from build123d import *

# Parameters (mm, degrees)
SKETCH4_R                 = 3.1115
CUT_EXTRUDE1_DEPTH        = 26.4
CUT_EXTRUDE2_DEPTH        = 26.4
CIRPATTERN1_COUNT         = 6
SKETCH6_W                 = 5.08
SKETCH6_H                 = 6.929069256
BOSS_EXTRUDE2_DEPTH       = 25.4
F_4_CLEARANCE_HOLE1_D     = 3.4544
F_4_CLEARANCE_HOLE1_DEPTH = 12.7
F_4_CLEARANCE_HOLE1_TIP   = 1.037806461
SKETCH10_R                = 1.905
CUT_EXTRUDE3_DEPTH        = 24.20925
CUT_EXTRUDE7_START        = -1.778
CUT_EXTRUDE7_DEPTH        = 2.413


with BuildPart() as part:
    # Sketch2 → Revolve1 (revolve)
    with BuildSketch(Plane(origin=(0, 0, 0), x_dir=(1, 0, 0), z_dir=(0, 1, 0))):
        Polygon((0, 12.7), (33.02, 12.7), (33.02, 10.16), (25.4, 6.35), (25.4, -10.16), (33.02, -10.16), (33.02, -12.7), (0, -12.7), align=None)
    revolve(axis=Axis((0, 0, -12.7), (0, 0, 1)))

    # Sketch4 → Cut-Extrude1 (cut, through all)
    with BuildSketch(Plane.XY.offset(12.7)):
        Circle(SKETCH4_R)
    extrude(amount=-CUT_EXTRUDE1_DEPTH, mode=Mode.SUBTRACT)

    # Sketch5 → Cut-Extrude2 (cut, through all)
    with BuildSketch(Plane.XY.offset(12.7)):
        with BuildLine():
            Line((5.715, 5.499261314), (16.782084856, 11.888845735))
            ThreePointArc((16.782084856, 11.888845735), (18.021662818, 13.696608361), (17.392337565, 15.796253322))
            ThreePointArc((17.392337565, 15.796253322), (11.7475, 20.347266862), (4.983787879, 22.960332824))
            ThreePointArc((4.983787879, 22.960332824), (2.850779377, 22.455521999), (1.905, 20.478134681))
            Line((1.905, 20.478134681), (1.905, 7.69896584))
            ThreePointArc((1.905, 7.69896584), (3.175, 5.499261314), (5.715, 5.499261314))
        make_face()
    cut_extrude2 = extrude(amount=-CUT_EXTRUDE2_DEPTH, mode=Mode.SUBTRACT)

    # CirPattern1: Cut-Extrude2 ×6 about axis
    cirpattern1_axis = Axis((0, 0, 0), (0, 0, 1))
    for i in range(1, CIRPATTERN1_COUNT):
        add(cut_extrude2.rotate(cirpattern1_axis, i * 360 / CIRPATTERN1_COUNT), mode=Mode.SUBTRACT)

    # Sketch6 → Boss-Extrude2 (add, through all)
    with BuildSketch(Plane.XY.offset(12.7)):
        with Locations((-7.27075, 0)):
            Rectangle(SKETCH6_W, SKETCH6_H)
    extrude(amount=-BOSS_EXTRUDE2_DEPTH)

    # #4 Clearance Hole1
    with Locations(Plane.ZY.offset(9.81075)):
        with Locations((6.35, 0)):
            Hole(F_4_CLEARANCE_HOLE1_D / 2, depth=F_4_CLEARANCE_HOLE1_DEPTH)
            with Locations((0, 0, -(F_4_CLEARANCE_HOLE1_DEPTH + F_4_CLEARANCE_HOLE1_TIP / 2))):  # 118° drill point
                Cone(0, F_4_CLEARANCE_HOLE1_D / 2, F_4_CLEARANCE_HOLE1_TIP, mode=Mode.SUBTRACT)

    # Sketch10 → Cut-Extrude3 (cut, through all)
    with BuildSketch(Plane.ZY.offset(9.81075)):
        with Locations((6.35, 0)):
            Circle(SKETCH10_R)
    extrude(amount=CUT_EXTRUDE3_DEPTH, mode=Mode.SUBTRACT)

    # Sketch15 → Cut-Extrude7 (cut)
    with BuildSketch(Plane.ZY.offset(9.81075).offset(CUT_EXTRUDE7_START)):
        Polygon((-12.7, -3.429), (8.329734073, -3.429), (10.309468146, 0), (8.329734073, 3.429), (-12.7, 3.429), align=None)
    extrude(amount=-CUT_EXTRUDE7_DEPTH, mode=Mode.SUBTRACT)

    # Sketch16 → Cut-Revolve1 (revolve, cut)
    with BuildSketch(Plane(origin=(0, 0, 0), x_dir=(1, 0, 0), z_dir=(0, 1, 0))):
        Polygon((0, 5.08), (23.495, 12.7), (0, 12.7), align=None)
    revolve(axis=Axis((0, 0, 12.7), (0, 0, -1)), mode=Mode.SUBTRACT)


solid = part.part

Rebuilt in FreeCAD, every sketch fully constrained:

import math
import FreeCAD as App
import Part
import Sketcher
from FreeCAD import Vector
Q = App.Units.Quantity

doc = App.newDocument("Part")
body = doc.addObject("PartDesign::Body", "Body")

# Sketch on XZ plane
sketch1 = doc.addObject("Sketcher::SketchObject", "Sketch")
body.addObject(sketch1)
sketch1.AttachmentSupport = (doc.XZ_Plane, [""])
sketch1.MapMode = "FlatFace"
sketch1.addGeometry([
    Part.LineSegment(Vector(33, -12.7, 0), Vector(0, -12.7, 0)),  # 0
    Part.LineSegment(Vector(0, -12.7, 0), Vector(0, 12.7, 0)),  # 1
    Part.LineSegment(Vector(0, 12.7, 0), Vector(33, 12.7, 0)),  # 2
    Part.LineSegment(Vector(33, 12.7, 0), Vector(33, 10.2, 0)),  # 3
    Part.LineSegment(Vector(33, 10.2, 0), Vector(25.4, 10.2, 0)),  # 4
    Part.LineSegment(Vector(25.4, 10.2, 0), Vector(25.4, -6.3, 0)),  # 5
    Part.LineSegment(Vector(25.4, -6.3, 0), Vector(33, -10.2, 0)),  # 6
    Part.LineSegment(Vector(33, -10.2, 0), Vector(33, -12.7, 0)),  # 7
], False)
sketch1.addConstraint([
    Sketcher.Constraint("Coincident", 0, 2, 1, 1),
    Sketcher.Constraint("Coincident", 1, 2, 2, 1),
    Sketcher.Constraint("Coincident", 2, 2, 3, 1),
    Sketcher.Constraint("Coincident", 3, 2, 4, 1),
    Sketcher.Constraint("Coincident", 4, 2, 5, 1),
    Sketcher.Constraint("Coincident", 5, 2, 6, 1),
    Sketcher.Constraint("Coincident", 6, 2, 7, 1),
    Sketcher.Constraint("Coincident", 7, 2, 0, 1),
    Sketcher.Constraint("Horizontal", 0),
    Sketcher.Constraint("Vertical", 1),
    Sketcher.Constraint("Horizontal", 2),
    Sketcher.Constraint("Vertical", 3),
    Sketcher.Constraint("Horizontal", 4),
    Sketcher.Constraint("Vertical", 5),
    Sketcher.Constraint("Vertical", 7),
    Sketcher.Constraint("Symmetric", 0, 2, 1, 2, -1, 1),
    Sketcher.Constraint("Symmetric", 3, 2, 6, 2, -1),
    Sketcher.Constraint("DistanceY", 1, 1, 1, 2, Q("1 in")),
    Sketcher.Constraint("DistanceX", 0, 2, 0, 1, Q("1.3 in")),
    Sketcher.Constraint("DistanceX", 4, 2, 4, 1, Q("0.3 in")),
    Sketcher.Constraint("DistanceY", 3, 2, 3, 1, Q("0.1 in")),
    Sketcher.Constraint("DistanceY", 5, 2, 5, 1, Q("0.65 in")),
])
revolution = doc.addObject("PartDesign::Revolution", "Revolution")
body.addObject(revolution)
revolution.Profile = sketch1
revolution.ReferenceAxis = (sketch1, ["V_Axis"])
revolution.Angle = 360

# Sketch on XY plane
sketch2 = doc.addObject("Sketcher::SketchObject", "Sketch001")
body.addObject(sketch2)
sketch2.AttachmentSupport = (doc.XY_Plane, [""])
sketch2.MapMode = "FlatFace"
sketch2.AttachmentOffset = App.Placement(Vector(0, 0, 0.5 * 25.4), App.Rotation())
sketch2.addGeometry(Part.Circle(Vector(0, 0, 0), Vector(0, 0, 1), 3.1), False)
sketch2.addConstraint([
    Sketcher.Constraint("Coincident", 0, 3, -1, 1),
    Sketcher.Constraint("Diameter", 0, Q("0.245 in")),
])
pocket1 = doc.addObject("PartDesign::Pocket", "Pocket")
body.addObject(pocket1)
pocket1.Profile = sketch2
pocket1.Type = "ThroughAll"

# Sketch on XY plane
sketch3 = doc.addObject("Sketcher::SketchObject", "Sketch002")
body.addObject(sketch3)
sketch3.AttachmentSupport = (doc.XY_Plane, [""])
sketch3.MapMode = "FlatFace"
sketch3.AttachmentOffset = App.Placement(Vector(0, 0, 0.5 * 25.4), App.Rotation())
sketch3.addGeometry([
    Part.LineSegment(Vector(5.7, 5.5, 0), Vector(16.8, 11.9, 0)),  # 0
    Part.ArcOfCircle(Part.Circle(Vector(15.5, 14.1, 0), Vector(0, 0, 1), 2.5), math.radians(-60), math.radians(42)),  # 1
    Part.ArcOfCircle(Part.Circle(Vector(0, 0, 0), Vector(0, 0, 1), 23.5), math.radians(42), math.radians(78)),  # 2
    Part.ArcOfCircle(Part.Circle(Vector(4.4, 20.5, 0), Vector(0, 0, 1), 2.5), math.radians(78), math.radians(180)),  # 3
    Part.LineSegment(Vector(1.9, 20.5, 0), Vector(1.9, 7.7, 0)),  # 4
    Part.ArcOfCircle(Part.Circle(Vector(4.4, 7.7, 0), Vector(0, 0, 1), 2.5), math.radians(180), math.radians(300)),  # 5
], False)
sketch3.addConstraint([
    Sketcher.Constraint("Tangent", 0, 2, 1, 1),
    Sketcher.Constraint("Tangent", 1, 2, 2, 1),
    Sketcher.Constraint("Tangent", 2, 2, 3, 1),
    Sketcher.Constraint("Tangent", 3, 2, 4, 1),
    Sketcher.Constraint("Tangent", 4, 2, 5, 1),
    Sketcher.Constraint("Tangent", 5, 2, 0, 1),
    Sketcher.Constraint("Vertical", 4),
    Sketcher.Constraint("Coincident", 2, 3, -1, 1),
    Sketcher.Constraint("Equal", 1, 3),
    Sketcher.Constraint("Equal", 3, 5),
    Sketcher.Constraint("Radius", 1, Q("0.1 in")),
    Sketcher.Constraint("Angle", 0, Q("30 deg")),
    Sketcher.Constraint("Radius", 2, Q("0.925 in")),
    Sketcher.Constraint("DistanceX", -1, 1, 3, 3, Q("0.175 in")),
    Sketcher.Constraint("DistanceX", 2, 2, 1, 3, Q("0.4144999 in")),
])
pocket2 = doc.addObject("PartDesign::Pocket", "Pocket001")
body.addObject(pocket2)
pocket2.Profile = sketch3
pocket2.Type = "ThroughAll"
doc.recompute()

polarpattern = doc.addObject("PartDesign::PolarPattern", "PolarPattern")
body.addObject(polarpattern)
polarpattern.Originals = [pocket2]
polarpattern.Axis = (doc.Z_Axis, [""])
polarpattern.Angle = 360
polarpattern.Occurrences = 6
body.Tip = polarpattern

# Sketch on XY plane
sketch4 = doc.addObject("Sketcher::SketchObject", "Sketch003")
body.addObject(sketch4)
sketch4.AttachmentSupport = (doc.XY_Plane, [""])
sketch4.MapMode = "FlatFace"
sketch4.AttachmentOffset = App.Placement(Vector(0, 0, 0.5 * 25.4), App.Rotation())
sketch4.addGeometry([
    Part.LineSegment(Vector(-10, 3, 0), Vector(-10, -3, 0)),
    Part.LineSegment(Vector(-10, -3, 0), Vector(-5, -3, 0)),
    Part.LineSegment(Vector(-5, -3, 0), Vector(-5, 3, 0)),
    Part.LineSegment(Vector(-5, 3, 0), Vector(-10, 3, 0)),
], False)
sketch4.addConstraint([
    Sketcher.Constraint("Coincident", 0, 2, 1, 1),
    Sketcher.Constraint("Coincident", 1, 2, 2, 1),
    Sketcher.Constraint("Coincident", 2, 2, 3, 1),
    Sketcher.Constraint("Coincident", 3, 2, 0, 1),
    Sketcher.Constraint("Vertical", 0),
    Sketcher.Constraint("Horizontal", 1),
    Sketcher.Constraint("Vertical", 2),
    Sketcher.Constraint("Horizontal", 3),
    Sketcher.Constraint("DistanceX", 1, 1, 1, 2, Q("0.2 in")),
    Sketcher.Constraint("DistanceY", 0, 2, 0, 1, Q("6.929069 mm")),
    Sketcher.Constraint("DistanceX", 0, 2, -1, 1, Q("9.81075 mm")),
    Sketcher.Constraint("DistanceY", 0, 2, -1, 1, Q("3.464535 mm")),
])
pad1 = doc.addObject("PartDesign::Pad", "Pad")
body.addObject(pad1)
pad1.Profile = sketch4
pad1.Length = Q("1 in")
pad1.Reversed = True

# Sketch on YZ plane
sketch5 = doc.addObject("Sketcher::SketchObject", "Sketch004")
body.addObject(sketch5)
sketch5.AttachmentSupport = (doc.YZ_Plane, [""])
sketch5.MapMode = "FlatFace"
sketch5.AttachmentOffset = App.Placement(Vector(0, 0, -9.81075), App.Rotation())
sketch5.addGeometry(Part.Circle(Vector(0, 6.3, 0), Vector(0, 0, 1), 1.7), False)
sketch5.addConstraint([
    Sketcher.Constraint("PointOnObject", 0, 3, -2),
    Sketcher.Constraint("Diameter", 0, Q("0.136 in")),
    Sketcher.Constraint("DistanceY", -1, 1, 0, 3, Q("0.25 in")),
])
doc.recompute()
hole = doc.addObject("PartDesign::Hole", "Hole")
body.addObject(hole)
hole.Profile = sketch5
hole.ThreadType = "None"
hole.Diameter = Q("0.136 in")
hole.DepthType = "Dimension"
hole.Depth = Q("0.5 in")
hole.DrillPoint = "Angled"
hole.DrillPointAngle = 118
hole.Reversed = True

# Sketch on YZ plane
sketch6 = doc.addObject("Sketcher::SketchObject", "Sketch005")
body.addObject(sketch6)
sketch6.AttachmentSupport = (doc.YZ_Plane, [""])
sketch6.MapMode = "FlatFace"
sketch6.AttachmentOffset = App.Placement(Vector(0, 0, -9.81075), App.Rotation())
sketch6.addGeometry(Part.Circle(Vector(0, 6.3, 0), Vector(0, 0, 1), 1.9), False)
sketch6.addConstraint([
    Sketcher.Constraint("PointOnObject", 0, 3, -2),
    Sketcher.Constraint("Diameter", 0, Q("0.15 in")),
    Sketcher.Constraint("DistanceY", -1, 1, 0, 3, Q("0.25 in")),
])
pocket3 = doc.addObject("PartDesign::Pocket", "Pocket002")
body.addObject(pocket3)
pocket3.Profile = sketch6
pocket3.Type = "ThroughAll"

# Sketch on YZ plane
sketch7 = doc.addObject("Sketcher::SketchObject", "Sketch006")
body.addObject(sketch7)
sketch7.AttachmentSupport = (doc.YZ_Plane, [""])
sketch7.MapMode = "FlatFace"
sketch7.AttachmentOffset = App.Placement(Vector(0, 0, -8.03275), App.Rotation())
sketch7.addGeometry([
    Part.LineSegment(Vector(-3.4, -12.7, 0), Vector(-3.4, 8.3, 0)),  # 0
    Part.LineSegment(Vector(-3.4, 8.3, 0), Vector(0, 10.3, 0)),  # 1
    Part.LineSegment(Vector(0, 10.3, 0), Vector(3.4, 8.3, 0)),  # 2
    Part.LineSegment(Vector(3.4, 8.3, 0), Vector(3.4, -12.7, 0)),  # 3
    Part.LineSegment(Vector(3.4, -12.7, 0), Vector(-3.4, -12.7, 0)),  # 4
], False)
sketch7.addConstraint([
    Sketcher.Constraint("Coincident", 0, 2, 1, 1),
    Sketcher.Constraint("Coincident", 1, 2, 2, 1),
    Sketcher.Constraint("Coincident", 2, 2, 3, 1),
    Sketcher.Constraint("Coincident", 3, 2, 4, 1),
    Sketcher.Constraint("Coincident", 4, 2, 0, 1),
    Sketcher.Constraint("Vertical", 0),
    Sketcher.Constraint("Vertical", 3),
    Sketcher.Constraint("Horizontal", 4),
    Sketcher.Constraint("Symmetric", 0, 2, 2, 2, -2),
    Sketcher.Constraint("PointOnObject", 1, 2, -2),
    Sketcher.Constraint("Angle", 1, Q("30 deg")),
    Sketcher.Constraint("DistanceX", 4, 2, 4, 1, Q("0.27 in")),
    Sketcher.Constraint("DistanceY", 3, 2, -1, 1, Q("0.5 in")),
    Sketcher.Constraint("DistanceY", 0, 1, 0, 2, Q("21.029734 mm")),
])
pocket4 = doc.addObject("PartDesign::Pocket", "Pocket003")
body.addObject(pocket4)
pocket4.Profile = sketch7
pocket4.Length = Q("0.095 in")
pocket4.Reversed = True

# Sketch on XZ plane
sketch8 = doc.addObject("Sketcher::SketchObject", "Sketch007")
body.addObject(sketch8)
sketch8.AttachmentSupport = (doc.XZ_Plane, [""])
sketch8.MapMode = "FlatFace"
sketch8.addGeometry([
    Part.LineSegment(Vector(0, -5, 0), Vector(23, -13, 0)),
    Part.LineSegment(Vector(23, -13, 0), Vector(0, -13, 0)),
    Part.LineSegment(Vector(0, -13, 0), Vector(0, -5, 0)),
], False)
sketch8.addConstraint([
    Sketcher.Constraint("Coincident", 0, 2, 1, 1),
    Sketcher.Constraint("Coincident", 1, 2, 2, 1),
    Sketcher.Constraint("Coincident", 2, 2, 0, 1),
    Sketcher.Constraint("Horizontal", 1),
    Sketcher.Constraint("Vertical", 2),
    Sketcher.Constraint("PointOnObject", 1, 2, -2),
    Sketcher.Constraint("DistanceY", 2, 1, 2, 2, Q("0.3 in")),
    Sketcher.Constraint("DistanceY", 0, 2, -1, 1, Q("0.5 in")),
    Sketcher.Constraint("DistanceX", 1, 2, 1, 1, Q("0.925 in")),
])
groove = doc.addObject("PartDesign::Groove", "Groove")
body.addObject(groove)
groove.Profile = sketch8
groove.ReferenceAxis = (sketch8, ["V_Axis"])
groove.Angle = 360

doc.recompute()
